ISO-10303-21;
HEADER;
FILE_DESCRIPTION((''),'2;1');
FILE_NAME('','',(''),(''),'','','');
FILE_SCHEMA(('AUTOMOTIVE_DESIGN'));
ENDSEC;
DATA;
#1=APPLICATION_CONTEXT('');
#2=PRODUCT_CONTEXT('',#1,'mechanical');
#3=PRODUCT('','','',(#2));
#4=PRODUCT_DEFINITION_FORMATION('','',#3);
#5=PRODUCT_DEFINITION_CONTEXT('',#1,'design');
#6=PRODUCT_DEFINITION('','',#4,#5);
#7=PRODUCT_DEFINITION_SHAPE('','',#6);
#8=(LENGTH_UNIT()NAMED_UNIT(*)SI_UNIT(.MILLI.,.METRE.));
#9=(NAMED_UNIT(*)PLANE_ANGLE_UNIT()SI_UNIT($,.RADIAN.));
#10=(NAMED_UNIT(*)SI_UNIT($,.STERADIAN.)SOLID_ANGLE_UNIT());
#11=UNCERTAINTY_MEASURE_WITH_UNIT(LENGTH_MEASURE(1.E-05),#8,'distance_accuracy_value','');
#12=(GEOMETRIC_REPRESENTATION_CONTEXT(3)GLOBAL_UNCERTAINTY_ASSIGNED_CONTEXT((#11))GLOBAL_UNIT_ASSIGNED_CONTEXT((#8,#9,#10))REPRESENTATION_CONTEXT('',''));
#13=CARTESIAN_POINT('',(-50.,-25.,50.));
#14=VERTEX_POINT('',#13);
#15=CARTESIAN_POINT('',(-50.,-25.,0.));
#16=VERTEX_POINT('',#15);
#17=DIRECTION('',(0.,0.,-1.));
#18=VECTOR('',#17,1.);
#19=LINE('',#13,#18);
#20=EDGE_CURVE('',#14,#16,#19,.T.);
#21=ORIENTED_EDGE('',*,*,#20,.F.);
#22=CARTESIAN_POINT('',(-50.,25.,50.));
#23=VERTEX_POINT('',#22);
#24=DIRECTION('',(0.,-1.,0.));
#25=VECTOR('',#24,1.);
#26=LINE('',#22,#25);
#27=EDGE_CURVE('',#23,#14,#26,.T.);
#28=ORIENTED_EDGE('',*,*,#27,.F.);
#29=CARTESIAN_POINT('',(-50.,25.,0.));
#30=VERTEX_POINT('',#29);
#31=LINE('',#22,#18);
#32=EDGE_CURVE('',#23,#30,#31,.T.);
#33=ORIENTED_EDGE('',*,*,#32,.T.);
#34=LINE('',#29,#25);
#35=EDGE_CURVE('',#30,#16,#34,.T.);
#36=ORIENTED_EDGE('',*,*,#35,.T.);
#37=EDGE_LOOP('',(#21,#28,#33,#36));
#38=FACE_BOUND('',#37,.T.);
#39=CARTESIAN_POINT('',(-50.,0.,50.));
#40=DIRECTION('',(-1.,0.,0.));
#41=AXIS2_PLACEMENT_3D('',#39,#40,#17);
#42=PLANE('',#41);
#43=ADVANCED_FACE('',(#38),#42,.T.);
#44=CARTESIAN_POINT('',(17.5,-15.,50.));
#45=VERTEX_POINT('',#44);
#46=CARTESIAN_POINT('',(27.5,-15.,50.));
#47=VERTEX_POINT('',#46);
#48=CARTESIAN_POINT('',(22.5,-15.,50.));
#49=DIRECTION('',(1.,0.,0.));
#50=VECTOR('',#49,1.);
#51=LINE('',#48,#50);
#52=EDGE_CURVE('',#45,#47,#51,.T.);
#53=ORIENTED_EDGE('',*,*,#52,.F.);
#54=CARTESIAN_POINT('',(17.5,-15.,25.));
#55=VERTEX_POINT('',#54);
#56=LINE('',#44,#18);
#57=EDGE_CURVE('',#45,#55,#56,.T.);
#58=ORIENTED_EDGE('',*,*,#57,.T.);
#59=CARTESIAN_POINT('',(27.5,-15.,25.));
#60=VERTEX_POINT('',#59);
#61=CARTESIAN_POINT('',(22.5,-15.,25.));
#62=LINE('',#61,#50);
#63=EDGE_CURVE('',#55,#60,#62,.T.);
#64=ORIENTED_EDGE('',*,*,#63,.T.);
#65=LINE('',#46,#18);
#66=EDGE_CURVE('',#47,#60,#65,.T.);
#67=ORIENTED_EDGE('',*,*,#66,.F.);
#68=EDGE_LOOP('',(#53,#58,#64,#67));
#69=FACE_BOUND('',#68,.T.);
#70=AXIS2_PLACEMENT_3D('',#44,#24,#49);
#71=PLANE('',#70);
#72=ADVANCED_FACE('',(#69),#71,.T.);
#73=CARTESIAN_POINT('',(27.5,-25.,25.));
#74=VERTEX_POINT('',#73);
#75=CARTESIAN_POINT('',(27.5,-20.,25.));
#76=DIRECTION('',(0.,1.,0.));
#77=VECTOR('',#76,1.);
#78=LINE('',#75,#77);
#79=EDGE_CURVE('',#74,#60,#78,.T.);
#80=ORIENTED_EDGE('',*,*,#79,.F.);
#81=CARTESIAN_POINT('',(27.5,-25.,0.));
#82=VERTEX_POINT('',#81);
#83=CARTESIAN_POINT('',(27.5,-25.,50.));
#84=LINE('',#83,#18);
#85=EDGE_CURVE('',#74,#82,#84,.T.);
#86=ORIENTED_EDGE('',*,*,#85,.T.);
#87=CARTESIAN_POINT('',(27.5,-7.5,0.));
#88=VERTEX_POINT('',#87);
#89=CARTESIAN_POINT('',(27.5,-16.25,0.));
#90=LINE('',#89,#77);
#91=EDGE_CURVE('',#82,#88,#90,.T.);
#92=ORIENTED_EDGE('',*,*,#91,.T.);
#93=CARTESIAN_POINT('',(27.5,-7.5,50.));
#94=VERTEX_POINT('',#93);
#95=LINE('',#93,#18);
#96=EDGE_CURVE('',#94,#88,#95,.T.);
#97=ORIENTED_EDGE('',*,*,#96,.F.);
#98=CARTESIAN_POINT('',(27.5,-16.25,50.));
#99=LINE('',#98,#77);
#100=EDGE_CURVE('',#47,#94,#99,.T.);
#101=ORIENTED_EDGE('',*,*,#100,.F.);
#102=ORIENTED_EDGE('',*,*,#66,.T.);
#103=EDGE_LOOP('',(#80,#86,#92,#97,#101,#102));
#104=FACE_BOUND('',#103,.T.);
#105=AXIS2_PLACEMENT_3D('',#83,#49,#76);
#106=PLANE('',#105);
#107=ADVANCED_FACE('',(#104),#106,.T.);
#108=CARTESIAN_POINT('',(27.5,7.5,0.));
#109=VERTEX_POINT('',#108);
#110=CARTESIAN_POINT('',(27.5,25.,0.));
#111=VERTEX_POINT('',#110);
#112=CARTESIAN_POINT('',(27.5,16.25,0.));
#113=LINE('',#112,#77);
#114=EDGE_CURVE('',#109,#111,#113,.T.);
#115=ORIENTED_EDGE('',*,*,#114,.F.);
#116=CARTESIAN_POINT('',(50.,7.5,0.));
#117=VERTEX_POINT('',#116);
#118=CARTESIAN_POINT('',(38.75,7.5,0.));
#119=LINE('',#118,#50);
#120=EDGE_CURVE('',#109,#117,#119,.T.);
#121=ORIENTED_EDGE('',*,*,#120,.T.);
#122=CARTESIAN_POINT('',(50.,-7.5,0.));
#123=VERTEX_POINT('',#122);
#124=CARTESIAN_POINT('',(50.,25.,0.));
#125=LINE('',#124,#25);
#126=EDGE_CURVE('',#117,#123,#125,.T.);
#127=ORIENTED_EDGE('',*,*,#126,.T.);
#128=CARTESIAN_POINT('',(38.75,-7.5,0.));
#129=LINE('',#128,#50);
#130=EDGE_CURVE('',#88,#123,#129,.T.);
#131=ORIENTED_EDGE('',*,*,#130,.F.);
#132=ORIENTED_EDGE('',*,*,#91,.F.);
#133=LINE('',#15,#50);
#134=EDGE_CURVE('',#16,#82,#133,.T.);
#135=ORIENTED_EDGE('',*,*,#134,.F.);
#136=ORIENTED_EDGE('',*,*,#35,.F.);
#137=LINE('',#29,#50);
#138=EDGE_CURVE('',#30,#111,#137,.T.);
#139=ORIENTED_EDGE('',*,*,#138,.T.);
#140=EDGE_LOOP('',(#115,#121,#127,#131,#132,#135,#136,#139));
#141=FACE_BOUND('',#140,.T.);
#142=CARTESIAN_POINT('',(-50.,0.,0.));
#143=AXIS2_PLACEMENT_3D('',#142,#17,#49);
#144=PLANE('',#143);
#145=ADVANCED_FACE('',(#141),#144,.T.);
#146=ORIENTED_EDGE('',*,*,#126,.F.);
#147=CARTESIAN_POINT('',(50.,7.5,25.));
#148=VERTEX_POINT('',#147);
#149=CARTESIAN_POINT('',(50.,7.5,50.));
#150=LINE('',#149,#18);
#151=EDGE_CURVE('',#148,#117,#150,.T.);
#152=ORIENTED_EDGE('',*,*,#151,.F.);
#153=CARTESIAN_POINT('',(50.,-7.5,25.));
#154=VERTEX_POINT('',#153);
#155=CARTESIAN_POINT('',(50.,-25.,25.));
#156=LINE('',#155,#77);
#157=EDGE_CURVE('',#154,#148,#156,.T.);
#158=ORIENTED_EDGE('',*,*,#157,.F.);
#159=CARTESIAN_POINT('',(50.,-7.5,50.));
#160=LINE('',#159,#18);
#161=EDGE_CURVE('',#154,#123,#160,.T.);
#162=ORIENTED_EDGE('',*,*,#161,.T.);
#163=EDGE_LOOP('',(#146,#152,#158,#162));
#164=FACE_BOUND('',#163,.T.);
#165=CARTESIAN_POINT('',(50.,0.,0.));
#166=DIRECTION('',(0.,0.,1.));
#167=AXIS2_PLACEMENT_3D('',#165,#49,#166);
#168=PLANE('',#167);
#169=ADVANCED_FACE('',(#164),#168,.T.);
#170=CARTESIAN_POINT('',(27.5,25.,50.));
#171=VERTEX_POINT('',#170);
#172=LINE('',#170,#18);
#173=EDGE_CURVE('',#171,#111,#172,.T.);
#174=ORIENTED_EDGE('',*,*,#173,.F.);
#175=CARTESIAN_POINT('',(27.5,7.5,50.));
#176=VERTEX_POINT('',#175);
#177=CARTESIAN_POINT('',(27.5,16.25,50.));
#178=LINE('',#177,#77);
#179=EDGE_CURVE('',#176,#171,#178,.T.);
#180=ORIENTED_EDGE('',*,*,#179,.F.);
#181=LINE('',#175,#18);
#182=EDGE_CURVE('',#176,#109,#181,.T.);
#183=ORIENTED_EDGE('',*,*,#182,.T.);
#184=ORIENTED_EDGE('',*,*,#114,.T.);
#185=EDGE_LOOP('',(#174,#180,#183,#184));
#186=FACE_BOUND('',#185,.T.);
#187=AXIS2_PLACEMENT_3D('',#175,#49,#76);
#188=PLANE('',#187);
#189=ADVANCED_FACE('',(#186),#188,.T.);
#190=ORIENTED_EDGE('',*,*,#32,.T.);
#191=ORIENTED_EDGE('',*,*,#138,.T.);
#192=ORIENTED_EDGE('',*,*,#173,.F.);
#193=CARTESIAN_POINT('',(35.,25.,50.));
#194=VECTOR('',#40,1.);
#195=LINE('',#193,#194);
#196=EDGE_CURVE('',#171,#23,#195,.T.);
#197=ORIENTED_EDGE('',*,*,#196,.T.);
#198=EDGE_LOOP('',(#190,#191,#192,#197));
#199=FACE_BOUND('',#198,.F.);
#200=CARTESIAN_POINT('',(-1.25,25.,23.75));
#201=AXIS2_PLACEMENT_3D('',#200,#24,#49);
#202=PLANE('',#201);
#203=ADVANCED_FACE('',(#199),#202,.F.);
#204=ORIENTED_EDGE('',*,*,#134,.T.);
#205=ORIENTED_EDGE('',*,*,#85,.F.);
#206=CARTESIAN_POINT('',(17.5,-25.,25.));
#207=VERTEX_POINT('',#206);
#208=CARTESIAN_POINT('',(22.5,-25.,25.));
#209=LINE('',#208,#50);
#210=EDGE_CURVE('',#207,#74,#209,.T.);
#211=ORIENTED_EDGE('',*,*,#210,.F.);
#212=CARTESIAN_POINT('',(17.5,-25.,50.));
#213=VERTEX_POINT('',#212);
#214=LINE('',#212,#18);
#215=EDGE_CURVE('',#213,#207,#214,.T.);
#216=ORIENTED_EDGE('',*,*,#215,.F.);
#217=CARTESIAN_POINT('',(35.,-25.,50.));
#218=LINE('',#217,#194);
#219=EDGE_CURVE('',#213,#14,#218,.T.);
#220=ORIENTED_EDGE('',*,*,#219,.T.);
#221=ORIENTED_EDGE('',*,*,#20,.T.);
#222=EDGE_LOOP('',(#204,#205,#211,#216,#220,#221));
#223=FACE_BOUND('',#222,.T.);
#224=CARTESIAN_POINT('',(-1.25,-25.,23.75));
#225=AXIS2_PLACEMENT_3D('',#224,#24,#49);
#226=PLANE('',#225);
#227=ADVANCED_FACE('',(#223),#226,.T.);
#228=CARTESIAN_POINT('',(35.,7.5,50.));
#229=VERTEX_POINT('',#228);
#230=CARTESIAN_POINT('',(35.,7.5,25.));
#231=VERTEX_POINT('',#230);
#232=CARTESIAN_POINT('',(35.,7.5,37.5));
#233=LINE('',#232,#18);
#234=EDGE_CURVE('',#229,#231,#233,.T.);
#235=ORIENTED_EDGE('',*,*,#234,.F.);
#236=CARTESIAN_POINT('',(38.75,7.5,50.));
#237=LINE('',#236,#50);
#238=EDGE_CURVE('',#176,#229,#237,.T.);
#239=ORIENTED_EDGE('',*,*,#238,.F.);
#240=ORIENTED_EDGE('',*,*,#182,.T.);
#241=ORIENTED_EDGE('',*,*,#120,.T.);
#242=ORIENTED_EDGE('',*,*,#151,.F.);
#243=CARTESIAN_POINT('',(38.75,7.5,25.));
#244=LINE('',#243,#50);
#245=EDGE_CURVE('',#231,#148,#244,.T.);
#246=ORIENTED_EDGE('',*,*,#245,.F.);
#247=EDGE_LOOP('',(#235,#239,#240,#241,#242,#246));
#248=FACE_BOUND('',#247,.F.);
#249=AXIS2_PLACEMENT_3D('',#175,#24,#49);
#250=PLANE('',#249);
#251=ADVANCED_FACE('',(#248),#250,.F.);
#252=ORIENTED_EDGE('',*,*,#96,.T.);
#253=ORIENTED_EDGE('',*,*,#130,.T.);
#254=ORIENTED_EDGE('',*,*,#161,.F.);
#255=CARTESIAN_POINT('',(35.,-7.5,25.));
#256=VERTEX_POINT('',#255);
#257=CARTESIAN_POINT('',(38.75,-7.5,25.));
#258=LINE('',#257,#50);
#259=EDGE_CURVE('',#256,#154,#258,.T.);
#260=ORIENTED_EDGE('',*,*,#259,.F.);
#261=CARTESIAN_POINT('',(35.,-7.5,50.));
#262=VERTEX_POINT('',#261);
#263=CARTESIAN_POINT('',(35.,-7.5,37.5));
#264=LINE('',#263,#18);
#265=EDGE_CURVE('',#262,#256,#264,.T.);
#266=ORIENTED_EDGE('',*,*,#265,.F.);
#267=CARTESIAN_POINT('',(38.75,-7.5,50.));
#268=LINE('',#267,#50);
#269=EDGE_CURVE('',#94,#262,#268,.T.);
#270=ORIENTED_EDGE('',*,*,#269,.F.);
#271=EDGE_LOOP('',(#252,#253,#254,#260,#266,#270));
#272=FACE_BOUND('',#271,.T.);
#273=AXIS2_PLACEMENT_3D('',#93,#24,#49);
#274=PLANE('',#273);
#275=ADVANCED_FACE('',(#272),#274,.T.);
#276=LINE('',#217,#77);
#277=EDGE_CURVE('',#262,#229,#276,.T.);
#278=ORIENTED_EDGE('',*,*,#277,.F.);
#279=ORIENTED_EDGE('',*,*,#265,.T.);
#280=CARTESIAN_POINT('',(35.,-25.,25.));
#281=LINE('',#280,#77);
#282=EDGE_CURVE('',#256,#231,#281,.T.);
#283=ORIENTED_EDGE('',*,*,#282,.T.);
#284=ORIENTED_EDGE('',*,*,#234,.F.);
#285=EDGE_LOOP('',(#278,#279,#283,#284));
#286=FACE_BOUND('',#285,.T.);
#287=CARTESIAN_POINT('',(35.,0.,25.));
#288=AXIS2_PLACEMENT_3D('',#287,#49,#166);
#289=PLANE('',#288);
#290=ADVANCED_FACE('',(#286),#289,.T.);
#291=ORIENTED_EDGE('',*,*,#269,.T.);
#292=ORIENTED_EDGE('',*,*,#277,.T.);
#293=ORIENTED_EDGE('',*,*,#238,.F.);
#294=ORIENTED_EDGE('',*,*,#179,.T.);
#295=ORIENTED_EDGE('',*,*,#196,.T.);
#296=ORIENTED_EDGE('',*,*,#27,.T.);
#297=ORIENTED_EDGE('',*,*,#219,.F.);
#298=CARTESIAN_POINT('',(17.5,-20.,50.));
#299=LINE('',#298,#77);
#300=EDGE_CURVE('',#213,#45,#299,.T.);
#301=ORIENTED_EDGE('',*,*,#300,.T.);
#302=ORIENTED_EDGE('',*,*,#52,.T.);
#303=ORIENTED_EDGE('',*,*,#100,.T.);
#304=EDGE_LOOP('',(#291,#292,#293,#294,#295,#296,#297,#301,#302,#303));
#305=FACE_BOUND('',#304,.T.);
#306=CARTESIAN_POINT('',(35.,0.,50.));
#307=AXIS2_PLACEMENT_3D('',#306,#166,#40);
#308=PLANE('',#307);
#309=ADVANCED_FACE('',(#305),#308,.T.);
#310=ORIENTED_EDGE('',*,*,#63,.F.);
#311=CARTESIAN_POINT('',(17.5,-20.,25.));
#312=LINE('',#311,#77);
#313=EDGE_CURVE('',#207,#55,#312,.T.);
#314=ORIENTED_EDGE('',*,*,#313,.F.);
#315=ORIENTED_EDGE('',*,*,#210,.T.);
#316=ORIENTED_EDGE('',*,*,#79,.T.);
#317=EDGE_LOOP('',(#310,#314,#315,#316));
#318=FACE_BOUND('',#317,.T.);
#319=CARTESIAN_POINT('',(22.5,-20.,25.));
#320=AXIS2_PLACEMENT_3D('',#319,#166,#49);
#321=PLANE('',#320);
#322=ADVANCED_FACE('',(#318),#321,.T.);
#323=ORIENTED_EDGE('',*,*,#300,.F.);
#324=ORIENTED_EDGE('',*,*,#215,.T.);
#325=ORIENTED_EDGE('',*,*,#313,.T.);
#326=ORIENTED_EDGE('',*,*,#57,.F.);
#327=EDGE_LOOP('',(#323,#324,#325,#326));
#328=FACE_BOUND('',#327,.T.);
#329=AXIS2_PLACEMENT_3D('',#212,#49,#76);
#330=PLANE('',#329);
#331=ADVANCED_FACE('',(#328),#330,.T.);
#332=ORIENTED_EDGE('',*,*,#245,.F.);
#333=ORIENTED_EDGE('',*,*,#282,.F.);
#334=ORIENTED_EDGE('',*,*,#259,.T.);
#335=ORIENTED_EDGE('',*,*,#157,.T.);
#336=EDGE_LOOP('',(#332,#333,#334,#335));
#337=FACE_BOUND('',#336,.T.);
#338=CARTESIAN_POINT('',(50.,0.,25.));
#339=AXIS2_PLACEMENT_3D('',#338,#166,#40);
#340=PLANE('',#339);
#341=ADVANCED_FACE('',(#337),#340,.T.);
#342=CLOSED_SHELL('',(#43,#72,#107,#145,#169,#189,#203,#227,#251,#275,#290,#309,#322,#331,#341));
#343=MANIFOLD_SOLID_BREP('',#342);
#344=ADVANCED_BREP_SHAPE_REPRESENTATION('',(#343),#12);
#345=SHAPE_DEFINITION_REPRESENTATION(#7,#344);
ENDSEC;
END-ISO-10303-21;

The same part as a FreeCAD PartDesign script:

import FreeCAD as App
import Part
import Sketcher
from FreeCAD import Vector
Q = App.Units.Quantity

doc = App.newDocument("Part")
body = doc.addObject("PartDesign::Body", "Body")

# Sketch on XZ plane
sketch1 = doc.addObject("Sketcher::SketchObject", "Sketch")
body.addObject(sketch1)
sketch1.AttachmentSupport = (doc.XZ_Plane, [""])
sketch1.MapMode = "FlatFace"
sketch1.addGeometry(Part.LineSegment(Vector(35, 50, 0), Vector(-50, 50, 0)), False)
sketch1.addGeometry(Part.LineSegment(Vector(-50, 50, 0), Vector(-50, 0, 0)), False)
sketch1.addGeometry(Part.LineSegment(Vector(-50, 0, 0), Vector(50, 0, 0)), False)
sketch1.addGeometry(Part.LineSegment(Vector(50, 0, 0), Vector(50, 25, 0)), False)
sketch1.addGeometry(Part.LineSegment(Vector(50, 25, 0), Vector(35, 25, 0)), False)
sketch1.addGeometry(Part.LineSegment(Vector(35, 25, 0), Vector(35, 50, 0)), False)
sketch1.addConstraint(Sketcher.Constraint("Coincident", 0, 2, 1, 1))
sketch1.addConstraint(Sketcher.Constraint("Coincident", 1, 2, 2, 1))
sketch1.addConstraint(Sketcher.Constraint("Coincident", 2, 2, 3, 1))
sketch1.addConstraint(Sketcher.Constraint("Coincident", 3, 2, 4, 1))
sketch1.addConstraint(Sketcher.Constraint("Coincident", 4, 2, 5, 1))
sketch1.addConstraint(Sketcher.Constraint("Coincident", 5, 2, 0, 1))
sketch1.addConstraint(Sketcher.Constraint("Horizontal", 0))
sketch1.addConstraint(Sketcher.Constraint("Vertical", 1))
sketch1.addConstraint(Sketcher.Constraint("Horizontal", 2))
sketch1.addConstraint(Sketcher.Constraint("Vertical", 3))
sketch1.addConstraint(Sketcher.Constraint("Horizontal", 4))
sketch1.addConstraint(Sketcher.Constraint("Vertical", 5))
sketch1.addConstraint(Sketcher.Constraint("Symmetric", 1, 2, 2, 2, -1, 1))
sketch1.addConstraint(Sketcher.Constraint("Equal", 3, 5))
sketch1.addConstraint(Sketcher.Constraint("DistanceX", 0, 2, 0, 1, Q("85 mm")))
sketch1.addConstraint(Sketcher.Constraint("DistanceX", 2, 1, 2, 2, Q("100 mm")))
sketch1.addConstraint(Sketcher.Constraint("DistanceY", 1, 2, 1, 1, Q("50 mm")))
pad1 = doc.addObject("PartDesign::Pad", "Pad")
body.addObject(pad1)
pad1.Profile = sketch1
pad1.Length = 50
pad1.Midplane = True

# Sketch on XY plane
sketch2 = doc.addObject("Sketcher::SketchObject", "Sketch001")
body.addObject(sketch2)
sketch2.AttachmentSupport = (doc.XY_Plane, [""])
sketch2.MapMode = "FlatFace"
sketch2.AttachmentOffset = App.Placement(Vector(0, 0, 50), App.Rotation())
sketch2.addGeometry(Part.LineSegment(Vector(28, 25, 0), Vector(28, 8, 0)), False)
sketch2.addGeometry(Part.LineSegment(Vector(28, 8, 0), Vector(50, 8, 0)), False)
sketch2.addGeometry(Part.LineSegment(Vector(50, 8, 0), Vector(50, 25, 0)), False)
sketch2.addGeometry(Part.LineSegment(Vector(50, 25, 0), Vector(28, 25, 0)), False)
sketch2.addGeometry(Part.LineSegment(Vector(28, -8, 0), Vector(28, -25, 0)), False)
sketch2.addGeometry(Part.LineSegment(Vector(28, -25, 0), Vector(50, -25, 0)), False)
sketch2.addGeometry(Part.LineSegment(Vector(50, -25, 0), Vector(50, -8, 0)), False)
sketch2.addGeometry(Part.LineSegment(Vector(50, -8, 0), Vector(28, -8, 0)), False)
sketch2.addConstraint(Sketcher.Constraint("Coincident", 0, 2, 1, 1))
sketch2.addConstraint(Sketcher.Constraint("Coincident", 1, 2, 2, 1))
sketch2.addConstraint(Sketcher.Constraint("Coincident", 2, 2, 3, 1))
sketch2.addConstraint(Sketcher.Constraint("Coincident", 3, 2, 0, 1))
sketch2.addConstraint(Sketcher.Constraint("Coincident", 4, 2, 5, 1))
sketch2.addConstraint(Sketcher.Constraint("Coincident", 5, 2, 6, 1))
sketch2.addConstraint(Sketcher.Constraint("Coincident", 6, 2, 7, 1))
sketch2.addConstraint(Sketcher.Constraint("Coincident", 7, 2, 4, 1))
sketch2.addConstraint(Sketcher.Constraint("Vertical", 0))
sketch2.addConstraint(Sketcher.Constraint("Horizontal", 1))
sketch2.addConstraint(Sketcher.Constraint("Vertical", 2))
sketch2.addConstraint(Sketcher.Constraint("Horizontal", 3))
sketch2.addConstraint(Sketcher.Constraint("Vertical", 4))
sketch2.addConstraint(Sketcher.Constraint("Horizontal", 5))
sketch2.addConstraint(Sketcher.Constraint("Vertical", 6))
sketch2.addConstraint(Sketcher.Constraint("Horizontal", 7))
sketch2.addConstraint(Sketcher.Constraint("Symmetric", 3, 2, 4, 2, -1))
sketch2.addConstraint(Sketcher.Constraint("Symmetric", 1, 2, 6, 2, -1))
sketch2.addConstraint(Sketcher.Constraint("DistanceX", 1, 1, 1, 2, Q("22.5 mm")))
sketch2.addConstraint(Sketcher.Constraint("DistanceY", 0, 2, 0, 1, Q("17.5 mm")))
sketch2.addConstraint(Sketcher.Constraint("DistanceX", -1, 1, 1, 2, Q("50 mm")))
sketch2.addConstraint(Sketcher.Constraint("DistanceY", -1, 1, 2, 2, Q("25 mm")))
pocket1 = doc.addObject("PartDesign::Pocket", "Pocket")
body.addObject(pocket1)
pocket1.Profile = sketch2
pocket1.Type = "ThroughAll"

# Sketch on XY plane
sketch3 = doc.addObject("Sketcher::SketchObject", "Sketch002")
body.addObject(sketch3)
sketch3.AttachmentSupport = (doc.XY_Plane, [""])
sketch3.MapMode = "FlatFace"
sketch3.AttachmentOffset = App.Placement(Vector(0, 0, 50), App.Rotation())
sketch3.addGeometry(Part.LineSegment(Vector(18, -15, 0), Vector(18, -25, 0)), False)
sketch3.addGeometry(Part.LineSegment(Vector(18, -25, 0), Vector(28, -25, 0)), False)
sketch3.addGeometry(Part.LineSegment(Vector(28, -25, 0), Vector(28, -15, 0)), False)
sketch3.addGeometry(Part.LineSegment(Vector(28, -15, 0), Vector(18, -15, 0)), False)
sketch3.addConstraint(Sketcher.Constraint("Coincident", 0, 2, 1, 1))
sketch3.addConstraint(Sketcher.Constraint("Coincident", 1, 2, 2, 1))
sketch3.addConstraint(Sketcher.Constraint("Coincident", 2, 2, 3, 1))
sketch3.addConstraint(Sketcher.Constraint("Coincident", 3, 2, 0, 1))
sketch3.addConstraint(Sketcher.Constraint("Vertical", 0))
sketch3.addConstraint(Sketcher.Constraint("Horizontal", 1))
sketch3.addConstraint(Sketcher.Constraint("Vertical", 2))
sketch3.addConstraint(Sketcher.Constraint("Horizontal", 3))
sketch3.addConstraint(Sketcher.Constraint("Equal", 3, 0))
sketch3.addConstraint(Sketcher.Constraint("DistanceX", 1, 1, 1, 2, Q("10 mm")))
sketch3.addConstraint(Sketcher.Constraint("DistanceY", 0, 2, -1, 1, Q("25 mm")))
sketch3.addConstraint(Sketcher.Constraint("DistanceX", -1, 1, 0, 2, Q("17.5 mm")))
pocket2 = doc.addObject("PartDesign::Pocket", "Pocket001")
body.addObject(pocket2)
pocket2.Profile = sketch3
pocket2.Length = 25

doc.recompute()
